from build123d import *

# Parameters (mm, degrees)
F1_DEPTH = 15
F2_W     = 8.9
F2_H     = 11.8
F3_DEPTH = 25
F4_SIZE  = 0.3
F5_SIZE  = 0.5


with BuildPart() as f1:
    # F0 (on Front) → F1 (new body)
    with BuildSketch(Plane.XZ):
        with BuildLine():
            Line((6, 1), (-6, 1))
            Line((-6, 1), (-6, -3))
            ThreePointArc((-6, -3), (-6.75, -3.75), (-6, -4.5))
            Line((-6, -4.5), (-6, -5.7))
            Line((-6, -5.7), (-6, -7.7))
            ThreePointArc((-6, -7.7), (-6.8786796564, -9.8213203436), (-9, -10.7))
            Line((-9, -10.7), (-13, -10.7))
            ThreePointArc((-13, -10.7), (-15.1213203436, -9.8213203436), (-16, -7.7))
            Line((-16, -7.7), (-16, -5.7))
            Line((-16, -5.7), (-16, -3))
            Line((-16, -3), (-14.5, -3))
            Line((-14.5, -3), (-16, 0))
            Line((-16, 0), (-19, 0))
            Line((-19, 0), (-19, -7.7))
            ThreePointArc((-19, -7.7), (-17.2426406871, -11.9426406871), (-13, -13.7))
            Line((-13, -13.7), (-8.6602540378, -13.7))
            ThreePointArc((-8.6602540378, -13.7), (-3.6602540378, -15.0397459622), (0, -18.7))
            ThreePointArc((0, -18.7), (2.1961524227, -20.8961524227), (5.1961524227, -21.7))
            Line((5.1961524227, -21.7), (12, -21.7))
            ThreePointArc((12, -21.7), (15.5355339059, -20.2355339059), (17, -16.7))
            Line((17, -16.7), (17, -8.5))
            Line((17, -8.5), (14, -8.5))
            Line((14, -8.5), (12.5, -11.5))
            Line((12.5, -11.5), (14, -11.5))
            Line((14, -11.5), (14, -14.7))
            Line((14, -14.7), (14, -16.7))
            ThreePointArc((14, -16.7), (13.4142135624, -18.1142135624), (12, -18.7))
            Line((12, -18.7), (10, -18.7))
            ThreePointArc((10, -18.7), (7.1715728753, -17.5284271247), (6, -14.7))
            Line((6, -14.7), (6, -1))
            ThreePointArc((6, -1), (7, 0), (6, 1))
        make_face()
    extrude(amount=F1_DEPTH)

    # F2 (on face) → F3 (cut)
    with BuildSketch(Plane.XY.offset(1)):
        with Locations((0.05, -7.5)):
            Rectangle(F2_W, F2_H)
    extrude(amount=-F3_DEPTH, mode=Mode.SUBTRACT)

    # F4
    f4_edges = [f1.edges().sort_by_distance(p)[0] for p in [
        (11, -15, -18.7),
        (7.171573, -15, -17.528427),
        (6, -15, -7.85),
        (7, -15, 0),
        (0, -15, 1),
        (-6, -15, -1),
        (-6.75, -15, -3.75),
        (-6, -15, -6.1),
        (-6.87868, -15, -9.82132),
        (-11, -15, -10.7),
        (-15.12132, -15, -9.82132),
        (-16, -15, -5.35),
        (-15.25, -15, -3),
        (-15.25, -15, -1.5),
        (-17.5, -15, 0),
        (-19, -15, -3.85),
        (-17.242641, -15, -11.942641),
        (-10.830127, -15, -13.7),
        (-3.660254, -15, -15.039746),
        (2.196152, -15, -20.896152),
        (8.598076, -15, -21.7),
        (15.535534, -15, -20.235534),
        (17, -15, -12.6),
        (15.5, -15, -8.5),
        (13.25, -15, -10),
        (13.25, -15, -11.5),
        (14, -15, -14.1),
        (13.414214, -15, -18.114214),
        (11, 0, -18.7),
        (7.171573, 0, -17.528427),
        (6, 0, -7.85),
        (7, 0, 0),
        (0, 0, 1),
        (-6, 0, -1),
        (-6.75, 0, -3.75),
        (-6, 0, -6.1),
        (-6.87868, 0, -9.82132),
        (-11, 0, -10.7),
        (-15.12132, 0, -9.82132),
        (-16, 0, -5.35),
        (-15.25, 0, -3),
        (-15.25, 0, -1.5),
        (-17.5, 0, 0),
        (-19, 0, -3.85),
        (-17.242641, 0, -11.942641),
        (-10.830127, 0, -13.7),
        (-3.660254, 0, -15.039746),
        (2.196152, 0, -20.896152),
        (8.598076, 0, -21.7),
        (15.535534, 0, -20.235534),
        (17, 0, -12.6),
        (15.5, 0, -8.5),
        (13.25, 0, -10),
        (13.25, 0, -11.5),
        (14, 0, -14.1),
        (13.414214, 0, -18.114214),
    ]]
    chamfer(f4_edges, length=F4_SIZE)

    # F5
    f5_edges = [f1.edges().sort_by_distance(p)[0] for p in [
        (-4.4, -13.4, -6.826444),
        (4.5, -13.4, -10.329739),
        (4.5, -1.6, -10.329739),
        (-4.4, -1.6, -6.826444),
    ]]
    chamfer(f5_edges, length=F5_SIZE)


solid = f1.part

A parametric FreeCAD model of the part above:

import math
import FreeCAD as App
import Part
import Sketcher

V = App.Vector
Q = App.Units.Quantity


def edges_at(feature, points):
    """Names of the edges that pass closest to the given points."""
    edges = feature.Shape.Edges
    near = lambda p: min(range(len(edges)), key=lambda i: edges[i].distToShape(Part.Vertex(*p))[0])
    return sorted({f"Edge{near(p) + 1}" for p in points})


def add_polygon(sketch, points):
    """Adds a closed chain of lines whose ends are joined by coincident constraints."""
    first, n = sketch.GeometryCount, len(points)
    for a, b in zip(points, points[1:] + points[:1]):
        sketch.addGeometry(Part.LineSegment(App.Vector(*a, 0), App.Vector(*b, 0)), False)
    for i in range(n):
        sketch.addConstraint(Sketcher.Constraint("Coincident", first + i, 2, first + (i + 1) % n, 1))

doc = App.newDocument("Part")
params = doc.addObject("Spreadsheet::Sheet", "Params")
for row, (alias, value) in enumerate([
    ("sketch1_radius", "3 mm"),
    ("sketch1_radius2", "6 mm"),
    ("sketch1_radius3", "10 mm"),
    ("sketch1_radius4", "5 mm"),
    ("sketch1_radius5", "4 mm"),
    ("pad1_length", "15 mm"),
    ("sketch2_width", "8.9 mm"),
    ("sketch2_height", "11.8 mm"),
    ("pocket1_length", "25 mm"),
    ("chamfer_size", "0.3 mm"),
    ("chamfer2_size", "0.5 mm"),
], start=1):
    params.set(f"A{row}", alias)
    params.set(f"B{row}", "=" + value)
    params.setAlias(f"B{row}", alias)

body = doc.addObject("PartDesign::Body", "Body")

sketch1 = body.newObject("Sketcher::SketchObject", "Sketch")
sketch1.AttachmentSupport = (doc.getObject("XZ_Plane"), [""])
sketch1.MapMode = "FlatFace"
sketch1.addGeometry(Part.LineSegment(V(6, 1, 0), V(-6, 1, 0)), False)
sketch1.addGeometry(Part.LineSegment(V(-6, 1, 0), V(-6, -3, 0)), False)
sketch1.addGeometry(Part.ArcOfCircle(Part.Circle(V(-6, -3.8, 0), V(0, 0, 1), 0.8), math.radians(90), math.radians(270)), False)
sketch1.addGeometry(Part.LineSegment(V(-6, -4.5, 0), V(-6, -7.7, 0)), False)
sketch1.addGeometry(Part.ArcOfCircle(Part.Circle(V(-9, -7.7, 0), V(0, 0, 1), 3), math.radians(-90), math.radians(0)), False)
sketch1.addGeometry(Part.LineSegment(V(-9, -10.7, 0), V(-13, -10.7, 0)), False)
sketch1.addGeometry(Part.ArcOfCircle(Part.Circle(V(-13, -7.7, 0), V(0, 0, 1), 3), math.radians(180), math.radians(270)), False)
sketch1.addGeometry(Part.LineSegment(V(-16, -7.7, 0), V(-16, -3, 0)), False)
sketch1.addGeometry(Part.LineSegment(V(-16, -3, 0), V(-14.5, -3, 0)), False)
sketch1.addGeometry(Part.LineSegment(V(-14.5, -3, 0), V(-16, 0, 0)), False)
sketch1.addGeometry(Part.LineSegment(V(-16, 0, 0), V(-19, 0, 0)), False)
sketch1.addGeometry(Part.LineSegment(V(-19, 0, 0), V(-19, -7.7, 0)), False)
sketch1.addGeometry(Part.ArcOfCircle(Part.Circle(V(-13, -7.7, 0), V(0, 0, 1), 6), math.radians(180), math.radians(270)), False)
sketch1.addGeometry(Part.LineSegment(V(-13, -13.7, 0), V(-8.7, -13.7, 0)), False)
sketch1.addGeometry(Part.ArcOfCircle(Part.Circle(V(-8.7, -23.7, 0), V(0, 0, 1), 10), math.radians(30), math.radians(90)), False)
sketch1.addGeometry(Part.ArcOfCircle(Part.Circle(V(5.2, -15.7, 0), V(0, 0, 1), 6), math.radians(-150), math.radians(-90)), False)
sketch1.addGeometry(Part.LineSegment(V(5.2, -21.7, 0), V(12, -21.7, 0)), False)
sketch1.addGeometry(Part.ArcOfCircle(Part.Circle(V(12, -16.7, 0), V(0, 0, 1), 5), math.radians(-90), math.radians(0)), False)
sketch1.addGeometry(Part.LineSegment(V(17, -16.7, 0), V(17, -8.5, 0)), False)
sketch1.addGeometry(Part.LineSegment(V(17, -8.5, 0), V(14, -8.5, 0)), False)
sketch1.addGeometry(Part.LineSegment(V(14, -8.5, 0), V(12.5, -11.5, 0)), False)
sketch1.addGeometry(Part.LineSegment(V(12.5, -11.5, 0), V(14, -11.5, 0)), False)
sketch1.addGeometry(Part.LineSegment(V(14, -11.5, 0), V(14, -16.7, 0)), False)
sketch1.addGeometry(Part.ArcOfCircle(Part.Circle(V(12, -16.7, 0), V(0, 0, 1), 2), math.radians(-90), math.radians(0)), False)
sketch1.addGeometry(Part.LineSegment(V(12, -18.7, 0), V(10, -18.7, 0)), False)
sketch1.addGeometry(Part.ArcOfCircle(Part.Circle(V(10, -14.7, 0), V(0, 0, 1), 4), math.radians(180), math.radians(270)), False)
sketch1.addGeometry(Part.LineSegment(V(6, -14.7, 0), V(6, -1, 0)), False)
sketch1.addGeometry(Part.ArcOfCircle(Part.Circle(V(6, 0, 0), V(0, 0, 1), 1), math.radians(-90), math.radians(90)), False)
sketch1.addConstraint(Sketcher.Constraint("Coincident", 0, 2, 1, 1))
sketch1.addConstraint(Sketcher.Constraint("Coincident", 1, 2, 2, 1))
sketch1.addConstraint(Sketcher.Constraint("Coincident", 2, 2, 3, 1))
sketch1.addConstraint(Sketcher.Constraint("Tangent", 3, 2, 4, 2))
sketch1.addConstraint(Sketcher.Constraint("Tangent", 4, 1, 5, 1))
sketch1.addConstraint(Sketcher.Constraint("Tangent", 5, 2, 6, 2))
sketch1.addConstraint(Sketcher.Constraint("Tangent", 6, 1, 7, 1))
sketch1.addConstraint(Sketcher.Constraint("Coincident", 7, 2, 8, 1))
sketch1.addConstraint(Sketcher.Constraint("Coincident", 8, 2, 9, 1))
sketch1.addConstraint(Sketcher.Constraint("Coincident", 9, 2, 10, 1))
sketch1.addConstraint(Sketcher.Constraint("Coincident", 10, 2, 11, 1))
sketch1.addConstraint(Sketcher.Constraint("Tangent", 11, 2, 12, 1))
sketch1.addConstraint(Sketcher.Constraint("Tangent", 12, 2, 13, 1))
sketch1.addConstraint(Sketcher.Constraint("Tangent", 13, 2, 14, 2))
sketch1.addConstraint(Sketcher.Constraint("Tangent", 14, 1, 15, 1))
sketch1.addConstraint(Sketcher.Constraint("Tangent", 15, 2, 16, 1))
sketch1.addConstraint(Sketcher.Constraint("Tangent", 16, 2, 17, 1))
sketch1.addConstraint(Sketcher.Constraint("Tangent", 17, 2, 18, 1))
sketch1.addConstraint(Sketcher.Constraint("Coincident", 18, 2, 19, 1))
sketch1.addConstraint(Sketcher.Constraint("Coincident", 19, 2, 20, 1))
sketch1.addConstraint(Sketcher.Constraint("Coincident", 20, 2, 21, 1))
sketch1.addConstraint(Sketcher.Constraint("Coincident", 21, 2, 22, 1))
sketch1.addConstraint(Sketcher.Constraint("Tangent", 22, 2, 23, 2))
sketch1.addConstraint(Sketcher.Constraint("Tangent", 23, 1, 24, 1))
sketch1.addConstraint(Sketcher.Constraint("Tangent", 24, 2, 25, 2))
sketch1.addConstraint(Sketcher.Constraint("Tangent", 25, 1, 26, 1))
sketch1.addConstraint(Sketcher.Constraint("Coincident", 26, 2, 27, 1))
sketch1.addConstraint(Sketcher.Constraint("Tangent", 27, 2, 0, 1))
sketch1.addConstraint(Sketcher.Constraint("Horizontal", 0))
sketch1.addConstraint(Sketcher.Constraint("Vertical", 1))
sketch1.addConstraint(Sketcher.Constraint("Vertical", 3))
sketch1.addConstraint(Sketcher.Constraint("Horizontal", 5))
sketch1.addConstraint(Sketcher.Constraint("Vertical", 7))
sketch1.addConstraint(Sketcher.Constraint("Horizontal", 8))
sketch1.addConstraint(Sketcher.Constraint("Horizontal", 10))
sketch1.addConstraint(Sketcher.Constraint("Vertical", 11))
sketch1.addConstraint(Sketcher.Constraint("Horizontal", 13))
sketch1.addConstraint(Sketcher.Constraint("Horizontal", 16))
sketch1.addConstraint(Sketcher.Constraint("Vertical", 18))
sketch1.addConstraint(Sketcher.Constraint("Horizontal", 19))
sketch1.addConstraint(Sketcher.Constraint("Horizontal", 21))
sketch1.addConstraint(Sketcher.Constraint("Vertical", 22))
sketch1.addConstraint(Sketcher.Constraint("Horizontal", 24))
sketch1.addConstraint(Sketcher.Constraint("Vertical", 26))
sketch1.addConstraint(Sketcher.Constraint("Coincident", 12, 3, 6, 3))
sketch1.addConstraint(Sketcher.Constraint("Coincident", 23, 3, 17, 3))
sketch1.addConstraint(Sketcher.Constraint("Equal", 4, 6))
sketch1.addConstraint(Sketcher.Constraint("Equal", 12, 15))
sketch1.addConstraint(Sketcher.Constraint("Symmetric", 0, 2, 26, 2, -1, 1))
sketch1.addConstraint(Sketcher.Constraint("PointOnObject", 9, 2, -1))
sketch1.addConstraint(Sketcher.Constraint("PointOnObject", 14, 1, -2))
sketch1.addConstraint(Sketcher.Constraint("Horizontal", 1, 2, 7, 2))
sketch1.addConstraint(Sketcher.Constraint("Horizontal", 14, 1, 23, 1))
sketch1.addConstraint(Sketcher.Constraint("Vertical", 2, 3, 0, 2))
sketch1.addConstraint(Sketcher.Constraint("Vertical", 1, 2, 2, 2))
sketch1.addConstraint(Sketcher.Constraint("Vertical", 7, 2, 9, 2))
sketch1.addConstraint(Sketcher.Constraint("Vertical", 19, 2, 21, 2))
sketch1.addConstraint(Sketcher.Constraint("Vertical", 27, 3, 25, 1))
sketch1.addConstraint(Sketcher.Constraint("Equal", 10, 19))
sketch1.addConstraint(Sketcher.Constraint("Equal", 8, 21))
sketch1.addConstraint(Sketcher.Constraint("Equal", 5, 1))
sketch1.addConstraint(Sketcher.Constraint("Equal", 9, 20))
sketch1.addConstraint(Sketcher.Constraint("Radius", 4, Q("3 mm")))
sketch1.addConstraint(Sketcher.Constraint("Radius", 12, Q("6 mm")))
sketch1.addConstraint(Sketcher.Constraint("Radius", 14, Q("10 mm")))
sketch1.addConstraint(Sketcher.Constraint("Radius", 17, Q("5 mm")))
sketch1.addConstraint(Sketcher.Constraint("Radius", 25, Q("4 mm")))
sketch1.addConstraint(Sketcher.Constraint("Radius", 27, Q("1 mm")))
sketch1.addConstraint(Sketcher.Constraint("DistanceX", 0, 2, 0, 1, Q("12 mm")))
sketch1.addConstraint(Sketcher.Constraint("DistanceX", 5, 2, 5, 1, Q("4 mm")))
sketch1.addConstraint(Sketcher.Constraint("DistanceX", 24, 2, 24, 1, Q("2 mm")))
sketch1.addConstraint(Sketcher.Constraint("Radius", 2, Q("0.75 mm")))
sketch1.addConstraint(Sketcher.Constraint("DistanceX", 8, 1, 8, 2, Q("1.5 mm")))
sketch1.addConstraint(Sketcher.Constraint("DistanceY", 3, 2, 3, 1, Q("3.2 mm")))
sketch1.addConstraint(Sketcher.Constraint("DistanceY", 18, 1, 18, 2, Q("8.2 mm")))
sketch1.setExpression("Constraints[62]", "Params.sketch1_radius")
sketch1.setExpression("Constraints[63]", "Params.sketch1_radius2")
sketch1.setExpression("Constraints[64]", "Params.sketch1_radius3")
sketch1.setExpression("Constraints[65]", "Params.sketch1_radius4")
sketch1.setExpression("Constraints[66]", "Params.sketch1_radius5")
pad1 = body.newObject("PartDesign::Pad", "Pad")
pad1.Profile = sketch1
pad1.setExpression("Length", "Params.pad1_length")

sketch2 = body.newObject("Sketcher::SketchObject", "Sketch001")
sketch2.AttachmentSupport = (doc.getObject("XY_Plane"), [""])
sketch2.MapMode = "FlatFace"
sketch2.AttachmentOffset = App.Placement(V(0, 0, 1), App.Rotation())
add_polygon(sketch2, [(-4, -2), (-4, -13), (4, -13), (4, -2)])
sketch2.addConstraint(Sketcher.Constraint("Vertical", 0))
sketch2.addConstraint(Sketcher.Constraint("Horizontal", 1))
sketch2.addConstraint(Sketcher.Constraint("Vertical", 2))
sketch2.addConstraint(Sketcher.Constraint("Horizontal", 3))
sketch2.addConstraint(Sketcher.Constraint("DistanceX", 1, 1, 1, 2, Q("8.9 mm")))
sketch2.addConstraint(Sketcher.Constraint("DistanceY", 0, 2, 0, 1, Q("11.8 mm")))
sketch2.addConstraint(Sketcher.Constraint("DistanceX", 0, 2, -1, 1, Q("4.4 mm")))
sketch2.addConstraint(Sketcher.Constraint("DistanceY", 0, 2, -1, 1, Q("13.4 mm")))
sketch2.setExpression("Constraints[8]", "Params.sketch2_width")
sketch2.setExpression("Constraints[9]", "Params.sketch2_height")
pocket1 = body.newObject("PartDesign::Pocket", "Pocket")
pocket1.Profile = sketch2
pocket1.setExpression("Length", "Params.pocket1_length")
doc.recompute()

chamfer = body.newObject("PartDesign::Chamfer", "Chamfer")
chamfer.Base = (pocket1, edges_at(pocket1, [
    (11, -15, -18.7),
    (7.172, -15, -17.528),
    (6, -15, -7.85),
    (7, -15, 0),
    (0, -15, 1),
    (-6, -15, -1),
    (-6.75, -15, -3.75),
    (-6, -15, -6.1),
    (-6.879, -15, -9.821),
    (-11, -15, -10.7),
    (-15.121, -15, -9.821),
    (-16, -15, -5.35),
    (-15.25, -15, -3),
    (-15.25, -15, -1.5),
    (-17.5, -15, 0),
    (-19, -15, -3.85),
    (-17.243, -15, -11.943),
    (-10.83, -15, -13.7),
    (-3.66, -15, -15.04),
    (2.196, -15, -20.896),
    (8.598, -15, -21.7),
    (15.536, -15, -20.236),
    (17, -15, -12.6),
    (15.5, -15, -8.5),
    (13.25, -15, -10),
    (13.25, -15, -11.5),
    (14, -15, -14.1),
    (13.414, -15, -18.114),
    (11, 0, -18.7),
    (7.172, 0, -17.528),
    (6, 0, -7.85),
    (7, 0, 0),
    (0, 0, 1),
    (-6, 0, -1),
    (-6.75, 0, -3.75),
    (-6, 0, -6.1),
    (-6.879, 0, -9.821),
    (-11, 0, -10.7),
    (-15.121, 0, -9.821),
    (-16, 0, -5.35),
    (-15.25, 0, -3),
    (-15.25, 0, -1.5),
    (-17.5, 0, 0),
    (-19, 0, -3.85),
    (-17.243, 0, -11.943),
    (-10.83, 0, -13.7),
    (-3.66, 0, -15.04),
    (2.196, 0, -20.896),
    (8.598, 0, -21.7),
    (15.536, 0, -20.236),
    (17, 0, -12.6),
    (15.5, 0, -8.5),
    (13.25, 0, -10),
    (13.25, 0, -11.5),
    (14, 0, -14.1),
    (13.414, 0, -18.114),
]))
chamfer.setExpression("Size", "Params.chamfer_size")
doc.recompute()

chamfer2 = body.newObject("PartDesign::Chamfer", "Chamfer001")
chamfer2.Base = (chamfer, edges_at(chamfer, [
    (-4.4, -13.4, -6.826),
    (4.5, -13.4, -10.33),
    (4.5, -1.6, -10.33),
    (-4.4, -1.6, -6.826),
]))
chamfer2.setExpression("Size", "Params.chamfer2_size")

doc.recompute()
